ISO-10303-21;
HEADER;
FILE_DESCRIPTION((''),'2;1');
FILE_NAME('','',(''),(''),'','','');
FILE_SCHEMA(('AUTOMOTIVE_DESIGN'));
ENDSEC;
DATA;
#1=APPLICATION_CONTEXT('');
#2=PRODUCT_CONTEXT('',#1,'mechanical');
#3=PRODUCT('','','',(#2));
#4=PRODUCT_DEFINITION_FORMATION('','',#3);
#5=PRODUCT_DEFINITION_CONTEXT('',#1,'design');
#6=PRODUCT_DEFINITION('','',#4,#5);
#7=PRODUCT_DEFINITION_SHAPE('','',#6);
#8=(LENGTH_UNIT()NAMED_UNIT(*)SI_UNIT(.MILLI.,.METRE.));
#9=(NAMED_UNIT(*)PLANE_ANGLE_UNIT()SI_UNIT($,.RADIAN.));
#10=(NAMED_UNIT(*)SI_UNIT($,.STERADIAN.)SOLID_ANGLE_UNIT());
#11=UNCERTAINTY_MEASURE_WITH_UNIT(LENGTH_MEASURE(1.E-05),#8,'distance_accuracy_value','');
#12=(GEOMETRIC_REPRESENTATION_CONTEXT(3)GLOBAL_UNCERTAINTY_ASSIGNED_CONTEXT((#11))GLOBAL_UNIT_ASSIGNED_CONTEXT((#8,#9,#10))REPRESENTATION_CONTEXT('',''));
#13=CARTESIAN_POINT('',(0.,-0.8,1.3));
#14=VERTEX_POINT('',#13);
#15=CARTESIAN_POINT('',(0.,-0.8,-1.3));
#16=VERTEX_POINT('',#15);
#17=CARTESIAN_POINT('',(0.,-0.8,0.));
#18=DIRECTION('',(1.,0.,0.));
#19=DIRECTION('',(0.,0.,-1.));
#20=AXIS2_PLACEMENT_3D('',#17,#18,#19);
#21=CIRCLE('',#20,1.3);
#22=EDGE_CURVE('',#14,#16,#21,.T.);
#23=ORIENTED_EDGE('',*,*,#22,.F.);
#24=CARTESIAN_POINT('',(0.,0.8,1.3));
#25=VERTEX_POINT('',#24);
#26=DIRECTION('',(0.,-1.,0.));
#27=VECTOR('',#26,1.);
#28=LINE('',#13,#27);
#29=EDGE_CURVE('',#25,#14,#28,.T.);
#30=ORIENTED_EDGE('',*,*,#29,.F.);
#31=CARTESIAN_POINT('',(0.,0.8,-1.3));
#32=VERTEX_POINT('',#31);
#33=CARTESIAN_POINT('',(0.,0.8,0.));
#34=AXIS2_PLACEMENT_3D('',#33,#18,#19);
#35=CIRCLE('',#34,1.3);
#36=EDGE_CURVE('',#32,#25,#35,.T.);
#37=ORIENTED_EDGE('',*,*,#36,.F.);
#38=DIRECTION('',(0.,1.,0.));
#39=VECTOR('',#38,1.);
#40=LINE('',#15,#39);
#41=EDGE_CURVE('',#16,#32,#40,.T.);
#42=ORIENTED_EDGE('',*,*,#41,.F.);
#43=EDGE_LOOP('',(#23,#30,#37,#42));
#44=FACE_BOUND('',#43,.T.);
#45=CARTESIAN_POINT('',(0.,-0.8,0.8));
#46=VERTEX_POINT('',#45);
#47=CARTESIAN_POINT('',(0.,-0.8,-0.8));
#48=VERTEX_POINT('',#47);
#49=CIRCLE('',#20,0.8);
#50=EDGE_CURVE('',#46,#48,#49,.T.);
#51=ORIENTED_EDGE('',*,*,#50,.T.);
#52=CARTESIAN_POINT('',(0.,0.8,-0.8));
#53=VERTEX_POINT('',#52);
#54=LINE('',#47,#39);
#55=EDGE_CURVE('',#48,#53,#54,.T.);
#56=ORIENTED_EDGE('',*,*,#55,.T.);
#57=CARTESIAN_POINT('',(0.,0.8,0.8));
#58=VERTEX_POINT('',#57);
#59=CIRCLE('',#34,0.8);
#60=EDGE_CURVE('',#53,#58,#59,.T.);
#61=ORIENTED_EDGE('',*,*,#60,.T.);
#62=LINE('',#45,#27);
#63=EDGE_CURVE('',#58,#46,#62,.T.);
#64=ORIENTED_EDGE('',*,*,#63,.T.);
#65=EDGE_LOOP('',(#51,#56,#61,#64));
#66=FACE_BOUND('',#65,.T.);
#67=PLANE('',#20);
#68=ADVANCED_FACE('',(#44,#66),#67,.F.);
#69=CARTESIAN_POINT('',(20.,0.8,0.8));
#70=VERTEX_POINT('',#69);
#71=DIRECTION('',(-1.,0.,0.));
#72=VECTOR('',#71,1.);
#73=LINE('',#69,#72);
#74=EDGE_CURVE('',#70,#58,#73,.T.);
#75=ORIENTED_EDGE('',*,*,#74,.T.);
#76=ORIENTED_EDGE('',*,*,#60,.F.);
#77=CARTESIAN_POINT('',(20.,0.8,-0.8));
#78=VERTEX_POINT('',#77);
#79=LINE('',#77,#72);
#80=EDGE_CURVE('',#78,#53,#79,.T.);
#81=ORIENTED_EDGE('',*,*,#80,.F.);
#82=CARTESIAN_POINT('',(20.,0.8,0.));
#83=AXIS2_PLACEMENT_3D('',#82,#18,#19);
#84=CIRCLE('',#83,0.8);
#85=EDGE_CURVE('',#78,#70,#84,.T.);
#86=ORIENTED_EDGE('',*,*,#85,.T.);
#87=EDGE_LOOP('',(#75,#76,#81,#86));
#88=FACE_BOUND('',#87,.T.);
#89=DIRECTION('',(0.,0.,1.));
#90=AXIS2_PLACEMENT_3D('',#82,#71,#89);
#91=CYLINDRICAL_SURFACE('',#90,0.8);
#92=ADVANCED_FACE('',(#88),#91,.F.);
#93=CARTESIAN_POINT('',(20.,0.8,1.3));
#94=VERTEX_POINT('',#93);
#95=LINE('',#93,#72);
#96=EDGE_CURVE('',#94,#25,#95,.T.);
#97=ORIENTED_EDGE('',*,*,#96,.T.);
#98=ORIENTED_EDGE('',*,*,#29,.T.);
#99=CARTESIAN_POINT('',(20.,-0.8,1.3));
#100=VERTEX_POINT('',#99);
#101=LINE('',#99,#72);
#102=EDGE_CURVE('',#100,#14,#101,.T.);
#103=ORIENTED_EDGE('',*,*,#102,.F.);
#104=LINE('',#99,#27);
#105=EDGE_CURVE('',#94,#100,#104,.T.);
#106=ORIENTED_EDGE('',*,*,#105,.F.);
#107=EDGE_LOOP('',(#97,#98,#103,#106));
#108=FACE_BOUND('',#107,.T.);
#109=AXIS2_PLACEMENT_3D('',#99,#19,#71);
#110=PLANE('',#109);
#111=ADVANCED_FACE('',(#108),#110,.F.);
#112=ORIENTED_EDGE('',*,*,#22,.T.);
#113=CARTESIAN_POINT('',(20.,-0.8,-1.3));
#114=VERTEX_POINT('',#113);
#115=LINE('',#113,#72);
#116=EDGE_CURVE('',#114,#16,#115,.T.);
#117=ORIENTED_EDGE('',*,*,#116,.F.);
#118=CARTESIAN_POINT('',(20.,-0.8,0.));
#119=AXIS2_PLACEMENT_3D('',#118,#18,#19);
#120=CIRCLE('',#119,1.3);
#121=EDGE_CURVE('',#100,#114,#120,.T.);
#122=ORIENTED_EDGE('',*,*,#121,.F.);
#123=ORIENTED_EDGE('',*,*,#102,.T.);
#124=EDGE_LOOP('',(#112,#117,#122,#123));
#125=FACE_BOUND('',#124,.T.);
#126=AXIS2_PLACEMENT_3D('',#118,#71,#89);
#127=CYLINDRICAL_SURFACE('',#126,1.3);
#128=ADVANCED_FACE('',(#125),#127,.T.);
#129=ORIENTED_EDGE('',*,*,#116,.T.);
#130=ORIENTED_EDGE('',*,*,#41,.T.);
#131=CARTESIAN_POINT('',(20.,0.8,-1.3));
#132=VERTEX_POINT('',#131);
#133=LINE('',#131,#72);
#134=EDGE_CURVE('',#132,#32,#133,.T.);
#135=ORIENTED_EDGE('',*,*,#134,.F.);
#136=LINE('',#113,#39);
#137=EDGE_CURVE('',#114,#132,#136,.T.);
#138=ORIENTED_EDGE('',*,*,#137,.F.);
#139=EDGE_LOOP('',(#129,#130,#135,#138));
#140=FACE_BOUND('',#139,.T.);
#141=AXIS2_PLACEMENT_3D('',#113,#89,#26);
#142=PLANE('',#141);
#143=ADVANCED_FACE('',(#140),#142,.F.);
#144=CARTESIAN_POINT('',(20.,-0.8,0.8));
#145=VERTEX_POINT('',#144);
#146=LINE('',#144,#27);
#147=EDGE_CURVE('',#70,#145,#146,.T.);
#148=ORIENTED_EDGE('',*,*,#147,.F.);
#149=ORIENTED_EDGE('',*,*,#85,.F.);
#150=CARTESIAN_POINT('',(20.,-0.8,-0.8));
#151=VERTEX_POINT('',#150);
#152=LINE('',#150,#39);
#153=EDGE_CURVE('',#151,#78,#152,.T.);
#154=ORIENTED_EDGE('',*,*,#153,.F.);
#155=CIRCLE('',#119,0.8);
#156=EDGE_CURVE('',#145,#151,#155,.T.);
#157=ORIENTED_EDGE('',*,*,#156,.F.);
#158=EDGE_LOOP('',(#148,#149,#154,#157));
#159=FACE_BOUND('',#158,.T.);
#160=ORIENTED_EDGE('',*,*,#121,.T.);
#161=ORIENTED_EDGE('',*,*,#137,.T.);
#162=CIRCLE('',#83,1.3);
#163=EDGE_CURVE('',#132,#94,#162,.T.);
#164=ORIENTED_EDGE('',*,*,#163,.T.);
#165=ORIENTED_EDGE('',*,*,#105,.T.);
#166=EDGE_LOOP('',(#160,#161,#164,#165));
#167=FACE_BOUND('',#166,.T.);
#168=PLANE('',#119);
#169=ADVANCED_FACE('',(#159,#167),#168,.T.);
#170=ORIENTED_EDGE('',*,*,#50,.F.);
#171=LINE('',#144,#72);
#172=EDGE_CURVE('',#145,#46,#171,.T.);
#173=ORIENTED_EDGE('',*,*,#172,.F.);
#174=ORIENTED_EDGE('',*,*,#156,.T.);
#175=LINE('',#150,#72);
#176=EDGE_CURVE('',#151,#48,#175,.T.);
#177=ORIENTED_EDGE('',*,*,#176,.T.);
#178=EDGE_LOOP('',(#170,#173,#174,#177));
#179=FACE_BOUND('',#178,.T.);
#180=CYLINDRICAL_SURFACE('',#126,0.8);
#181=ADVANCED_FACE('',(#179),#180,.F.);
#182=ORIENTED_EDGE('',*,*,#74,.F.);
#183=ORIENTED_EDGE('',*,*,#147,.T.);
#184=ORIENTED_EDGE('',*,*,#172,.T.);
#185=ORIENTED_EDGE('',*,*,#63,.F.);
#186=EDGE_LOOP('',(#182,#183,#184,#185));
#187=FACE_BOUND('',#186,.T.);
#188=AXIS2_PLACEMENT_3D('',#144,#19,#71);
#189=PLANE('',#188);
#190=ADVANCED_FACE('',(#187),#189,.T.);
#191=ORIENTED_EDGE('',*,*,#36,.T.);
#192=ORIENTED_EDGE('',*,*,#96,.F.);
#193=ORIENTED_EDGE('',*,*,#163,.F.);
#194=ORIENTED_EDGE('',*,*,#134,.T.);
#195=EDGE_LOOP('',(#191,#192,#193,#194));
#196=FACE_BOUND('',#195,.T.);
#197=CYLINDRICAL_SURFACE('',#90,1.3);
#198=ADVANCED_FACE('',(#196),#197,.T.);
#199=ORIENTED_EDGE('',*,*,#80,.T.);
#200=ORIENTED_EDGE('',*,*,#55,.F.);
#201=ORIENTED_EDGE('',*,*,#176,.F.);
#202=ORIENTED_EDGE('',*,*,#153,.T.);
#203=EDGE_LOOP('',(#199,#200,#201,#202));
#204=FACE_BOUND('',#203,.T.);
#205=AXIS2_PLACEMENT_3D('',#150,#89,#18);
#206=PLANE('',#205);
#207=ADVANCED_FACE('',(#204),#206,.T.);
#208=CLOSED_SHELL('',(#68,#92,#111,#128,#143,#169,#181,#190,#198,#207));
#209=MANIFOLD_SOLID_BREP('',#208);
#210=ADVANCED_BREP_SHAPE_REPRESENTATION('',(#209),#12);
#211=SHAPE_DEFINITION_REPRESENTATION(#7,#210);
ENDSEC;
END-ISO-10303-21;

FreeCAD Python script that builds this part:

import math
import FreeCAD as App
import Part
import Sketcher
Q = App.Units.Quantity

doc = App.newDocument("Part")
body = doc.addObject("PartDesign::Body", "Body")

# Sketch on YZ plane
sketch1 = doc.addObject("Sketcher::SketchObject", "Sketch")
body.addObject(sketch1)
sketch1.AttachmentSupport = (doc.YZ_Plane, [""])
sketch1.MapMode = "FlatFace"
sketch1.addGeometry([
    Part.LineSegment(App.Vector(0.8, 1.3, 0), App.Vector(-0.8, 1.3, 0)),  # 0
    Part.ArcOfCircle(Part.Circle(App.Vector(-0.8, 0, 0), App.Vector(0, 0, 1), 1.3), math.radians(90), math.radians(270)),  # 1
    Part.LineSegment(App.Vector(-0.8, -1.3, 0), App.Vector(0.8, -1.3, 0)),  # 2
    Part.ArcOfCircle(Part.Circle(App.Vector(0.8, 0, 0), App.Vector(0, 0, 1), 1.3), math.radians(-90), math.radians(90)),  # 3
    Part.LineSegment(App.Vector(-0.8, 0.8, 0), App.Vector(0.8, 0.8, 0)),  # 4
    Part.ArcOfCircle(Part.Circle(App.Vector(0.8, 0, 0), App.Vector(0, 0, 1), 0.8), math.radians(-90), math.radians(90)),  # 5
    Part.LineSegment(App.Vector(0.8, -0.8, 0), App.Vector(-0.8, -0.8, 0)),  # 6
    Part.ArcOfCircle(Part.Circle(App.Vector(-0.8, 0, 0), App.Vector(0, 0, 1), 0.8), math.radians(90), math.radians(270)),  # 7
], False)
sketch1.addConstraint([
    Sketcher.Constraint("Tangent", 0, 2, 1, 1),
    Sketcher.Constraint("Tangent", 1, 2, 2, 1),
    Sketcher.Constraint("Tangent", 2, 2, 3, 1),
    Sketcher.Constraint("Tangent", 3, 2, 0, 1),
    Sketcher.Constraint("Tangent", 4, 2, 5, 2),
    Sketcher.Constraint("Tangent", 5, 1, 6, 1),
    Sketcher.Constraint("Tangent", 6, 2, 7, 2),
    Sketcher.Constraint("Tangent", 7, 1, 4, 1),
    Sketcher.Constraint("Horizontal", 0),
    Sketcher.Constraint("Horizontal", 2),
    Sketcher.Constraint("Horizontal", 4),
    Sketcher.Constraint("Horizontal", 6),
    Sketcher.Constraint("Coincident", 5, 3, 3, 3),
    Sketcher.Constraint("Symmetric", 1, 3, 3, 3, -1, 1),
    Sketcher.Constraint("Vertical", 7, 3, 0, 2),
    Sketcher.Constraint("Radius", 1, Q("1.3 mm")),
    Sketcher.Constraint("Radius", 5, Q("0.8 mm")),
    Sketcher.Constraint("DistanceX", 0, 2, 0, 1, Q("1.6 mm")),
])
pad1 = doc.addObject("PartDesign::Pad", "Pad")
body.addObject(pad1)
pad1.Profile = sketch1
pad1.Length = 20

doc.recompute()
